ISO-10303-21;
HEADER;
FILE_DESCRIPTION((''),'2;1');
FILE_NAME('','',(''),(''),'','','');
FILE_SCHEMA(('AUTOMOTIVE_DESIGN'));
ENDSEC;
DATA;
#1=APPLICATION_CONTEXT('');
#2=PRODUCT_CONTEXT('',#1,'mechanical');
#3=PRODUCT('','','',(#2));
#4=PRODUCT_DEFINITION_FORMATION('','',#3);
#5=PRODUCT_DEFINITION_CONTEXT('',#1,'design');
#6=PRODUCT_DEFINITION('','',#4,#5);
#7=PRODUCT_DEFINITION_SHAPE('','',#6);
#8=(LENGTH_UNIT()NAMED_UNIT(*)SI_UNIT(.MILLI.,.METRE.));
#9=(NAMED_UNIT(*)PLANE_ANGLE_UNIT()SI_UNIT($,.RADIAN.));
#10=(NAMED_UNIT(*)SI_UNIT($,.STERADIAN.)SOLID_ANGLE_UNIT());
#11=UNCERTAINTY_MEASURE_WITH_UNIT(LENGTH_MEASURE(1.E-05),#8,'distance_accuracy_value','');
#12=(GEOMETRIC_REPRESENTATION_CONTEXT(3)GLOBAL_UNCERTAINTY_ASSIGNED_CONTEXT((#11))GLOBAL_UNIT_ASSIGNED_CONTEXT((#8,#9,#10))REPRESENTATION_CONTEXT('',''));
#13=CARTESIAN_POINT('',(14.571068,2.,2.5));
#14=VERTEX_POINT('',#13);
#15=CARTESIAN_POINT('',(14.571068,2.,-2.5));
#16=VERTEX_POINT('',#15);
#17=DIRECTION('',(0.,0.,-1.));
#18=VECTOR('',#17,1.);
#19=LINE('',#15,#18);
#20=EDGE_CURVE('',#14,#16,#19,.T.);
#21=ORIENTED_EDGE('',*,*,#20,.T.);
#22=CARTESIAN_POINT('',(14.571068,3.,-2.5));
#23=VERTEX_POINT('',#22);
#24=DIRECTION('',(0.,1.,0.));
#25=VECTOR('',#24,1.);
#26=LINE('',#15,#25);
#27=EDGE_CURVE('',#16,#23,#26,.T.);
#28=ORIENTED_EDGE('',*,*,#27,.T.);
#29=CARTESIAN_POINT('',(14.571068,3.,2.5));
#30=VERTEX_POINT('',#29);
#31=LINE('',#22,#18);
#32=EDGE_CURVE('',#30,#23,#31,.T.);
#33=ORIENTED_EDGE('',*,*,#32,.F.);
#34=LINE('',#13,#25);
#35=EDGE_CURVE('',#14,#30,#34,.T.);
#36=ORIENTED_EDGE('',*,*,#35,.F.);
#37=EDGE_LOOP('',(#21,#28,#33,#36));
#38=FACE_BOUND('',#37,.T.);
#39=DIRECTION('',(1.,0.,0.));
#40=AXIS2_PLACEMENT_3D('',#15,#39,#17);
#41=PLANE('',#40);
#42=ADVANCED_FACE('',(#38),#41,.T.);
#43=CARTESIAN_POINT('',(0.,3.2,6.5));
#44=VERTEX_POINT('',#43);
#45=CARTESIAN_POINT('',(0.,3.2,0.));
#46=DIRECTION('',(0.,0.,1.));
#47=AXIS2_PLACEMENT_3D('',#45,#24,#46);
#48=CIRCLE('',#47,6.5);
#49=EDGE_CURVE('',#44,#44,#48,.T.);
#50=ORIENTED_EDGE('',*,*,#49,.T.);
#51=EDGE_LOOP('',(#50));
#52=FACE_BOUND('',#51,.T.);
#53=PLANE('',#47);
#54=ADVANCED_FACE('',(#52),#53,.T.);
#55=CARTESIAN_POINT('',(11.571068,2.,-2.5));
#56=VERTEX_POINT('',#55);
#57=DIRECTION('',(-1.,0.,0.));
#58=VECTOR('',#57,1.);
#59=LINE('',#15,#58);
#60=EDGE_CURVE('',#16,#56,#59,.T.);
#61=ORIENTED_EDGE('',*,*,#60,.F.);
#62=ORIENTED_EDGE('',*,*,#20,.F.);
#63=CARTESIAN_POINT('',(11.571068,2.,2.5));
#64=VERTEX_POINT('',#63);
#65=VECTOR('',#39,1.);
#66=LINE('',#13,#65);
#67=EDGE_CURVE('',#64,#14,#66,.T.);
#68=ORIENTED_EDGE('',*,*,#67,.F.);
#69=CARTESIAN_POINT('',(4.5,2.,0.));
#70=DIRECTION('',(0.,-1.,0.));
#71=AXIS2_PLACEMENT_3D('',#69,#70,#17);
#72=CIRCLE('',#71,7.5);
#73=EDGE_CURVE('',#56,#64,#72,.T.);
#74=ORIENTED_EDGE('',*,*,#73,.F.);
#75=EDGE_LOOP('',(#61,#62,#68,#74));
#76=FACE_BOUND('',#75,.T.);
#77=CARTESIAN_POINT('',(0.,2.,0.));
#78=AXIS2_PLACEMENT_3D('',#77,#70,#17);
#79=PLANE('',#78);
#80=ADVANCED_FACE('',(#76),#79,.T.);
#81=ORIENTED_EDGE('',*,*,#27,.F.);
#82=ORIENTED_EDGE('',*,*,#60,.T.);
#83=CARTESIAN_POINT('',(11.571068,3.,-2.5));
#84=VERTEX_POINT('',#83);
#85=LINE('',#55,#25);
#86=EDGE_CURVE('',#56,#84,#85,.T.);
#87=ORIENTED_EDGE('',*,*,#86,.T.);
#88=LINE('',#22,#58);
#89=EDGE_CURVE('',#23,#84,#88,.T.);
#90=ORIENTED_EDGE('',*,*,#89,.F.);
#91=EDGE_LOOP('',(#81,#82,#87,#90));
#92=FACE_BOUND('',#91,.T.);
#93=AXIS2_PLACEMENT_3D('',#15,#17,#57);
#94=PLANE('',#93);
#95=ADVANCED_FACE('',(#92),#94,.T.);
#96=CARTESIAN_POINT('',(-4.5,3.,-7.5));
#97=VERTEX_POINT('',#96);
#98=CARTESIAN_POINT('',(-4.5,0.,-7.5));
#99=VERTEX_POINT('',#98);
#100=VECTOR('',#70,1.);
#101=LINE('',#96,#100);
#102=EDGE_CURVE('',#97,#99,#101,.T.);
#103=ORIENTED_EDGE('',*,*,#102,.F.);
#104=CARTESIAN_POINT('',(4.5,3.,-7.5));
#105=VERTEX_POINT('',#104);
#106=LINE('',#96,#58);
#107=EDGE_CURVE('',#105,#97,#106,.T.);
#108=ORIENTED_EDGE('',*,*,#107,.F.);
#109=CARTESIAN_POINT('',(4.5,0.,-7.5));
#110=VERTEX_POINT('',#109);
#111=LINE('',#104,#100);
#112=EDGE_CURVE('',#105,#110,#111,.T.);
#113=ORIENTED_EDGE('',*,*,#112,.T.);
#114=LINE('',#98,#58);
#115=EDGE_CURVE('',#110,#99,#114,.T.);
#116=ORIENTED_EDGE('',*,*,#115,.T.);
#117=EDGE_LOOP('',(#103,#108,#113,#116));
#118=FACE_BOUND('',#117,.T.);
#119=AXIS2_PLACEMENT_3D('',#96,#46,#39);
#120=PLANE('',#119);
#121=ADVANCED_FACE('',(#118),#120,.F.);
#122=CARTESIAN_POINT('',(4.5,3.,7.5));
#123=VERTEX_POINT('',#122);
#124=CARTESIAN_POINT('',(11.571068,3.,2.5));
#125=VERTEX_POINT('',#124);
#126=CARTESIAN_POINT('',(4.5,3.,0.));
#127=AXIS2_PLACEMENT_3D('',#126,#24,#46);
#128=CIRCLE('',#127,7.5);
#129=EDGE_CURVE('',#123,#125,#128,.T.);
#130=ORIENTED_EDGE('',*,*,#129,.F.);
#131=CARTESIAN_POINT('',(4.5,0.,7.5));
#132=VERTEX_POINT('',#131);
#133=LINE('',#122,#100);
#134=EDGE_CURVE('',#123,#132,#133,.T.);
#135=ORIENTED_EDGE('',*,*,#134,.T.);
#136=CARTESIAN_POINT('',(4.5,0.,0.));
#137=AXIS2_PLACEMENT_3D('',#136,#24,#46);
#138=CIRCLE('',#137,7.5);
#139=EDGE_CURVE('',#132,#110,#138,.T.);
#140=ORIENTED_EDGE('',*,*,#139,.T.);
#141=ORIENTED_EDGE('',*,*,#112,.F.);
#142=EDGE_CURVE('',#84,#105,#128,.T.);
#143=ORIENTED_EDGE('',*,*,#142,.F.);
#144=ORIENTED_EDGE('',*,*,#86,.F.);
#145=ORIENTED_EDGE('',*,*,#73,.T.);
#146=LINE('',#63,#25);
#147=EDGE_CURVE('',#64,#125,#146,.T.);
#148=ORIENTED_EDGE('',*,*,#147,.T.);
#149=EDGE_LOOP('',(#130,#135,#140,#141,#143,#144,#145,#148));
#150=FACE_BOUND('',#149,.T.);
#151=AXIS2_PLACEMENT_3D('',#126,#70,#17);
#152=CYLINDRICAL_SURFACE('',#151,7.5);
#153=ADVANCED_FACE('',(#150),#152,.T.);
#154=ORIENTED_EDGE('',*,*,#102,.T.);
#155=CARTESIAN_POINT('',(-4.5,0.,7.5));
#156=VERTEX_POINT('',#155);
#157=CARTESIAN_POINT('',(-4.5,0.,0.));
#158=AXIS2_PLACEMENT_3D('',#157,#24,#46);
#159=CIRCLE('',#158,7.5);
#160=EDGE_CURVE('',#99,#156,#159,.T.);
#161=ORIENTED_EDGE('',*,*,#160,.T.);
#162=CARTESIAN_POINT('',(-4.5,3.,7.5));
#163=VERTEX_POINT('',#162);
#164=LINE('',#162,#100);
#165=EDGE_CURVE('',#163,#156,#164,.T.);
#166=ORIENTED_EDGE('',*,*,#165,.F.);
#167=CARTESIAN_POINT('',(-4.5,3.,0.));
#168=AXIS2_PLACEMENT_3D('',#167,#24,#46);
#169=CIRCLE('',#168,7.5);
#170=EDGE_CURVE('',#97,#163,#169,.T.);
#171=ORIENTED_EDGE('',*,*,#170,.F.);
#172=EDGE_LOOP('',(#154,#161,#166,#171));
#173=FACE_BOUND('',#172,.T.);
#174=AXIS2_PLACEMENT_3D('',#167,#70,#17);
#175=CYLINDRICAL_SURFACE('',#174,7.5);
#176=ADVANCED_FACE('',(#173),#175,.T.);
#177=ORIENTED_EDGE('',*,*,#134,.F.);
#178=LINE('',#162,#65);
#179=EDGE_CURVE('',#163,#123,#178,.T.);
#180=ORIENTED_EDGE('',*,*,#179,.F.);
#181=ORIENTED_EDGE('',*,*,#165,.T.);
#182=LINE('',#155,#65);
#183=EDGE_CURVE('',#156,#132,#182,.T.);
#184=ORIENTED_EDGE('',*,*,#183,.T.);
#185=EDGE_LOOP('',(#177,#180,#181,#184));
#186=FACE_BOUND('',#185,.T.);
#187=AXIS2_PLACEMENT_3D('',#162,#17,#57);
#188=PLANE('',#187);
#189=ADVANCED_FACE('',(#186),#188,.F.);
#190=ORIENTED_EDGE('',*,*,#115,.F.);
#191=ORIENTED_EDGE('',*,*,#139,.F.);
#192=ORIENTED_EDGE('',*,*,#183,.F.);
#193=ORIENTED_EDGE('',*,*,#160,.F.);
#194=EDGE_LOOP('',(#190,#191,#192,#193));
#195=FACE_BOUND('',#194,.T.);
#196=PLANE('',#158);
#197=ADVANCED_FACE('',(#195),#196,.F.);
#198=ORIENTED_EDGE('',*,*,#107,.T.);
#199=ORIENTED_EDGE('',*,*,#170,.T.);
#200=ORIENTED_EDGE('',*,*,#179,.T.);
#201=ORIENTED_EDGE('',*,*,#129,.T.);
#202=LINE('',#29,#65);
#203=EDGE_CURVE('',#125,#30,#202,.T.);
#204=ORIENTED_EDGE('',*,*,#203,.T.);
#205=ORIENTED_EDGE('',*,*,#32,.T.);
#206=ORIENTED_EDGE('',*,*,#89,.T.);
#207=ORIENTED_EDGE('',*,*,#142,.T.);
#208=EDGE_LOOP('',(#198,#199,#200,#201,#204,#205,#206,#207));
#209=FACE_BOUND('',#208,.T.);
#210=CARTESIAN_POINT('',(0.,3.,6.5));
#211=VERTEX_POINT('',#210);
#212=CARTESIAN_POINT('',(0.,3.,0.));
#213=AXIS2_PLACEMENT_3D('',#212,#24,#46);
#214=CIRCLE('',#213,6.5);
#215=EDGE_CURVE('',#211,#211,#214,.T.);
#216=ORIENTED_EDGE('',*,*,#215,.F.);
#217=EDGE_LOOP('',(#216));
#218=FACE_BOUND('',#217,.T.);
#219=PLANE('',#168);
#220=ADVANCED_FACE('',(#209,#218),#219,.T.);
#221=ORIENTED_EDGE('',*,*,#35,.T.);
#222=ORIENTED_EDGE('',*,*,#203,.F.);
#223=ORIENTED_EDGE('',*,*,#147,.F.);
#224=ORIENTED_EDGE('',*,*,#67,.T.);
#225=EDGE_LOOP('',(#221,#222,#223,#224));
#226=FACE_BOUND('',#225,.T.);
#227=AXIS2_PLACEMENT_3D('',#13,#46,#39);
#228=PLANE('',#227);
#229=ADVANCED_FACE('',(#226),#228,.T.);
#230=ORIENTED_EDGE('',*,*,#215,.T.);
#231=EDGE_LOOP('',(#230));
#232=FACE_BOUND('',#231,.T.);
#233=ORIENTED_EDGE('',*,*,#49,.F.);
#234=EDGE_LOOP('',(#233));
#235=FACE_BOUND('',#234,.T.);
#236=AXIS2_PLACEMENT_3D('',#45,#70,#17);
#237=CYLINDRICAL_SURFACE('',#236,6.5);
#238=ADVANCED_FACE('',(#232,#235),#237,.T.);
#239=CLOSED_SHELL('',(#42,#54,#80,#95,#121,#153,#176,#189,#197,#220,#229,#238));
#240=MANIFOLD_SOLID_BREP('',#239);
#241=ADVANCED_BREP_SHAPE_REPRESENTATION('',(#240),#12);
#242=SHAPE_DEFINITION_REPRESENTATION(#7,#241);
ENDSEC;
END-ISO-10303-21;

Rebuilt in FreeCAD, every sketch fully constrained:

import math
import FreeCAD as App
import Part
import Sketcher
Q = App.Units.Quantity

doc = App.newDocument("Part")
body = doc.addObject("PartDesign::Body", "Body")

# Sketch on XZ plane
sketch1 = doc.addObject("Sketcher::SketchObject", "Sketch")
body.addObject(sketch1)
sketch1.AttachmentSupport = (doc.XZ_Plane, [""])
sketch1.MapMode = "FlatFace"
sketch1.addGeometry([
    Part.LineSegment(App.Vector(4.5, -7.5, 0), App.Vector(-4.5, -7.5, 0)),
    Part.ArcOfCircle(Part.Circle(App.Vector(-4.5, 0, 0), App.Vector(0, 0, 1), 7.5), math.radians(90), math.radians(270)),
    Part.LineSegment(App.Vector(-4.5, 7.5, 0), App.Vector(4.5, 7.5, 0)),
    Part.ArcOfCircle(Part.Circle(App.Vector(4.5, 0, 0), App.Vector(0, 0, 1), 7.5), math.radians(-90), math.radians(90)),
], False)
sketch1.addConstraint([
    Sketcher.Constraint("Tangent", 0, 2, 1, 2),
    Sketcher.Constraint("Tangent", 1, 1, 2, 1),
    Sketcher.Constraint("Tangent", 2, 2, 3, 2),
    Sketcher.Constraint("Tangent", 3, 1, 0, 1),
    Sketcher.Constraint("Horizontal", 0),
    Sketcher.Constraint("Horizontal", 2),
    Sketcher.Constraint("Symmetric", 1, 3, 3, 3, -1, 1),
    Sketcher.Constraint("Radius", 1, Q("7.5 mm")),
    Sketcher.Constraint("DistanceX", 0, 2, 0, 1, Q("9 mm")),
])
pad1 = doc.addObject("PartDesign::Pad", "Pad")
body.addObject(pad1)
pad1.Profile = sketch1
pad1.Length = 3
pad1.Reversed = True

# Sketch on XZ plane
sketch2 = doc.addObject("Sketcher::SketchObject", "Sketch001")
body.addObject(sketch2)
sketch2.AttachmentSupport = (doc.XZ_Plane, [""])
sketch2.MapMode = "FlatFace"
sketch2.AttachmentOffset = App.Placement(App.Vector(0, 0, -3), App.Rotation())
sketch2.addGeometry(Part.Circle(App.Vector(0, 0, 0), App.Vector(0, 0, 1), 6.5), False)
sketch2.addConstraint([
    Sketcher.Constraint("Coincident", 0, 3, -1, 1),
    Sketcher.Constraint("Diameter", 0, Q("13 mm")),
])
pad2 = doc.addObject("PartDesign::Pad", "Pad001")
body.addObject(pad2)
pad2.Profile = sketch2
pad2.Length = 0.2
pad2.Reversed = True

# Sketch on XZ plane
sketch3 = doc.addObject("Sketcher::SketchObject", "Sketch002")
body.addObject(sketch3)
sketch3.AttachmentSupport = (doc.XZ_Plane, [""])
sketch3.MapMode = "FlatFace"
sketch3.AttachmentOffset = App.Placement(App.Vector(0, 0, -3), App.Rotation())
sketch3.addGeometry([
    Part.LineSegment(App.Vector(11.571068, -2.5, 0), App.Vector(11.571068, 2.5, 0)),
    Part.LineSegment(App.Vector(11.571068, 2.5, 0), App.Vector(14.571068, 2.5, 0)),
    Part.LineSegment(App.Vector(14.571068, 2.5, 0), App.Vector(14.571068, -2.5, 0)),
    Part.LineSegment(App.Vector(14.571068, -2.5, 0), App.Vector(11.571068, -2.5, 0)),
], False)
sketch3.addConstraint([
    Sketcher.Constraint("Coincident", 0, 2, 1, 1),
    Sketcher.Constraint("Coincident", 1, 2, 2, 1),
    Sketcher.Constraint("Coincident", 2, 2, 3, 1),
    Sketcher.Constraint("Coincident", 3, 2, 0, 1),
    Sketcher.Constraint("Vertical", 0),
    Sketcher.Constraint("Horizontal", 1),
    Sketcher.Constraint("Vertical", 2),
    Sketcher.Constraint("Horizontal", 3),
    Sketcher.Constraint("DistanceX", 1, 1, 1, 2, Q("3 mm")),
    Sketcher.Constraint("DistanceY", 0, 1, 0, 2, Q("5 mm")),
    Sketcher.Constraint("DistanceY", -1, 1, 0, 2, Q("2.5 mm")),
    Sketcher.Constraint("DistanceX", -1, 1, 0, 2, Q("11.571068 mm")),
])
pad3 = doc.addObject("PartDesign::Pad", "Pad002")
body.addObject(pad3)
pad3.Profile = sketch3
pad3.Length = 1

doc.recompute()
